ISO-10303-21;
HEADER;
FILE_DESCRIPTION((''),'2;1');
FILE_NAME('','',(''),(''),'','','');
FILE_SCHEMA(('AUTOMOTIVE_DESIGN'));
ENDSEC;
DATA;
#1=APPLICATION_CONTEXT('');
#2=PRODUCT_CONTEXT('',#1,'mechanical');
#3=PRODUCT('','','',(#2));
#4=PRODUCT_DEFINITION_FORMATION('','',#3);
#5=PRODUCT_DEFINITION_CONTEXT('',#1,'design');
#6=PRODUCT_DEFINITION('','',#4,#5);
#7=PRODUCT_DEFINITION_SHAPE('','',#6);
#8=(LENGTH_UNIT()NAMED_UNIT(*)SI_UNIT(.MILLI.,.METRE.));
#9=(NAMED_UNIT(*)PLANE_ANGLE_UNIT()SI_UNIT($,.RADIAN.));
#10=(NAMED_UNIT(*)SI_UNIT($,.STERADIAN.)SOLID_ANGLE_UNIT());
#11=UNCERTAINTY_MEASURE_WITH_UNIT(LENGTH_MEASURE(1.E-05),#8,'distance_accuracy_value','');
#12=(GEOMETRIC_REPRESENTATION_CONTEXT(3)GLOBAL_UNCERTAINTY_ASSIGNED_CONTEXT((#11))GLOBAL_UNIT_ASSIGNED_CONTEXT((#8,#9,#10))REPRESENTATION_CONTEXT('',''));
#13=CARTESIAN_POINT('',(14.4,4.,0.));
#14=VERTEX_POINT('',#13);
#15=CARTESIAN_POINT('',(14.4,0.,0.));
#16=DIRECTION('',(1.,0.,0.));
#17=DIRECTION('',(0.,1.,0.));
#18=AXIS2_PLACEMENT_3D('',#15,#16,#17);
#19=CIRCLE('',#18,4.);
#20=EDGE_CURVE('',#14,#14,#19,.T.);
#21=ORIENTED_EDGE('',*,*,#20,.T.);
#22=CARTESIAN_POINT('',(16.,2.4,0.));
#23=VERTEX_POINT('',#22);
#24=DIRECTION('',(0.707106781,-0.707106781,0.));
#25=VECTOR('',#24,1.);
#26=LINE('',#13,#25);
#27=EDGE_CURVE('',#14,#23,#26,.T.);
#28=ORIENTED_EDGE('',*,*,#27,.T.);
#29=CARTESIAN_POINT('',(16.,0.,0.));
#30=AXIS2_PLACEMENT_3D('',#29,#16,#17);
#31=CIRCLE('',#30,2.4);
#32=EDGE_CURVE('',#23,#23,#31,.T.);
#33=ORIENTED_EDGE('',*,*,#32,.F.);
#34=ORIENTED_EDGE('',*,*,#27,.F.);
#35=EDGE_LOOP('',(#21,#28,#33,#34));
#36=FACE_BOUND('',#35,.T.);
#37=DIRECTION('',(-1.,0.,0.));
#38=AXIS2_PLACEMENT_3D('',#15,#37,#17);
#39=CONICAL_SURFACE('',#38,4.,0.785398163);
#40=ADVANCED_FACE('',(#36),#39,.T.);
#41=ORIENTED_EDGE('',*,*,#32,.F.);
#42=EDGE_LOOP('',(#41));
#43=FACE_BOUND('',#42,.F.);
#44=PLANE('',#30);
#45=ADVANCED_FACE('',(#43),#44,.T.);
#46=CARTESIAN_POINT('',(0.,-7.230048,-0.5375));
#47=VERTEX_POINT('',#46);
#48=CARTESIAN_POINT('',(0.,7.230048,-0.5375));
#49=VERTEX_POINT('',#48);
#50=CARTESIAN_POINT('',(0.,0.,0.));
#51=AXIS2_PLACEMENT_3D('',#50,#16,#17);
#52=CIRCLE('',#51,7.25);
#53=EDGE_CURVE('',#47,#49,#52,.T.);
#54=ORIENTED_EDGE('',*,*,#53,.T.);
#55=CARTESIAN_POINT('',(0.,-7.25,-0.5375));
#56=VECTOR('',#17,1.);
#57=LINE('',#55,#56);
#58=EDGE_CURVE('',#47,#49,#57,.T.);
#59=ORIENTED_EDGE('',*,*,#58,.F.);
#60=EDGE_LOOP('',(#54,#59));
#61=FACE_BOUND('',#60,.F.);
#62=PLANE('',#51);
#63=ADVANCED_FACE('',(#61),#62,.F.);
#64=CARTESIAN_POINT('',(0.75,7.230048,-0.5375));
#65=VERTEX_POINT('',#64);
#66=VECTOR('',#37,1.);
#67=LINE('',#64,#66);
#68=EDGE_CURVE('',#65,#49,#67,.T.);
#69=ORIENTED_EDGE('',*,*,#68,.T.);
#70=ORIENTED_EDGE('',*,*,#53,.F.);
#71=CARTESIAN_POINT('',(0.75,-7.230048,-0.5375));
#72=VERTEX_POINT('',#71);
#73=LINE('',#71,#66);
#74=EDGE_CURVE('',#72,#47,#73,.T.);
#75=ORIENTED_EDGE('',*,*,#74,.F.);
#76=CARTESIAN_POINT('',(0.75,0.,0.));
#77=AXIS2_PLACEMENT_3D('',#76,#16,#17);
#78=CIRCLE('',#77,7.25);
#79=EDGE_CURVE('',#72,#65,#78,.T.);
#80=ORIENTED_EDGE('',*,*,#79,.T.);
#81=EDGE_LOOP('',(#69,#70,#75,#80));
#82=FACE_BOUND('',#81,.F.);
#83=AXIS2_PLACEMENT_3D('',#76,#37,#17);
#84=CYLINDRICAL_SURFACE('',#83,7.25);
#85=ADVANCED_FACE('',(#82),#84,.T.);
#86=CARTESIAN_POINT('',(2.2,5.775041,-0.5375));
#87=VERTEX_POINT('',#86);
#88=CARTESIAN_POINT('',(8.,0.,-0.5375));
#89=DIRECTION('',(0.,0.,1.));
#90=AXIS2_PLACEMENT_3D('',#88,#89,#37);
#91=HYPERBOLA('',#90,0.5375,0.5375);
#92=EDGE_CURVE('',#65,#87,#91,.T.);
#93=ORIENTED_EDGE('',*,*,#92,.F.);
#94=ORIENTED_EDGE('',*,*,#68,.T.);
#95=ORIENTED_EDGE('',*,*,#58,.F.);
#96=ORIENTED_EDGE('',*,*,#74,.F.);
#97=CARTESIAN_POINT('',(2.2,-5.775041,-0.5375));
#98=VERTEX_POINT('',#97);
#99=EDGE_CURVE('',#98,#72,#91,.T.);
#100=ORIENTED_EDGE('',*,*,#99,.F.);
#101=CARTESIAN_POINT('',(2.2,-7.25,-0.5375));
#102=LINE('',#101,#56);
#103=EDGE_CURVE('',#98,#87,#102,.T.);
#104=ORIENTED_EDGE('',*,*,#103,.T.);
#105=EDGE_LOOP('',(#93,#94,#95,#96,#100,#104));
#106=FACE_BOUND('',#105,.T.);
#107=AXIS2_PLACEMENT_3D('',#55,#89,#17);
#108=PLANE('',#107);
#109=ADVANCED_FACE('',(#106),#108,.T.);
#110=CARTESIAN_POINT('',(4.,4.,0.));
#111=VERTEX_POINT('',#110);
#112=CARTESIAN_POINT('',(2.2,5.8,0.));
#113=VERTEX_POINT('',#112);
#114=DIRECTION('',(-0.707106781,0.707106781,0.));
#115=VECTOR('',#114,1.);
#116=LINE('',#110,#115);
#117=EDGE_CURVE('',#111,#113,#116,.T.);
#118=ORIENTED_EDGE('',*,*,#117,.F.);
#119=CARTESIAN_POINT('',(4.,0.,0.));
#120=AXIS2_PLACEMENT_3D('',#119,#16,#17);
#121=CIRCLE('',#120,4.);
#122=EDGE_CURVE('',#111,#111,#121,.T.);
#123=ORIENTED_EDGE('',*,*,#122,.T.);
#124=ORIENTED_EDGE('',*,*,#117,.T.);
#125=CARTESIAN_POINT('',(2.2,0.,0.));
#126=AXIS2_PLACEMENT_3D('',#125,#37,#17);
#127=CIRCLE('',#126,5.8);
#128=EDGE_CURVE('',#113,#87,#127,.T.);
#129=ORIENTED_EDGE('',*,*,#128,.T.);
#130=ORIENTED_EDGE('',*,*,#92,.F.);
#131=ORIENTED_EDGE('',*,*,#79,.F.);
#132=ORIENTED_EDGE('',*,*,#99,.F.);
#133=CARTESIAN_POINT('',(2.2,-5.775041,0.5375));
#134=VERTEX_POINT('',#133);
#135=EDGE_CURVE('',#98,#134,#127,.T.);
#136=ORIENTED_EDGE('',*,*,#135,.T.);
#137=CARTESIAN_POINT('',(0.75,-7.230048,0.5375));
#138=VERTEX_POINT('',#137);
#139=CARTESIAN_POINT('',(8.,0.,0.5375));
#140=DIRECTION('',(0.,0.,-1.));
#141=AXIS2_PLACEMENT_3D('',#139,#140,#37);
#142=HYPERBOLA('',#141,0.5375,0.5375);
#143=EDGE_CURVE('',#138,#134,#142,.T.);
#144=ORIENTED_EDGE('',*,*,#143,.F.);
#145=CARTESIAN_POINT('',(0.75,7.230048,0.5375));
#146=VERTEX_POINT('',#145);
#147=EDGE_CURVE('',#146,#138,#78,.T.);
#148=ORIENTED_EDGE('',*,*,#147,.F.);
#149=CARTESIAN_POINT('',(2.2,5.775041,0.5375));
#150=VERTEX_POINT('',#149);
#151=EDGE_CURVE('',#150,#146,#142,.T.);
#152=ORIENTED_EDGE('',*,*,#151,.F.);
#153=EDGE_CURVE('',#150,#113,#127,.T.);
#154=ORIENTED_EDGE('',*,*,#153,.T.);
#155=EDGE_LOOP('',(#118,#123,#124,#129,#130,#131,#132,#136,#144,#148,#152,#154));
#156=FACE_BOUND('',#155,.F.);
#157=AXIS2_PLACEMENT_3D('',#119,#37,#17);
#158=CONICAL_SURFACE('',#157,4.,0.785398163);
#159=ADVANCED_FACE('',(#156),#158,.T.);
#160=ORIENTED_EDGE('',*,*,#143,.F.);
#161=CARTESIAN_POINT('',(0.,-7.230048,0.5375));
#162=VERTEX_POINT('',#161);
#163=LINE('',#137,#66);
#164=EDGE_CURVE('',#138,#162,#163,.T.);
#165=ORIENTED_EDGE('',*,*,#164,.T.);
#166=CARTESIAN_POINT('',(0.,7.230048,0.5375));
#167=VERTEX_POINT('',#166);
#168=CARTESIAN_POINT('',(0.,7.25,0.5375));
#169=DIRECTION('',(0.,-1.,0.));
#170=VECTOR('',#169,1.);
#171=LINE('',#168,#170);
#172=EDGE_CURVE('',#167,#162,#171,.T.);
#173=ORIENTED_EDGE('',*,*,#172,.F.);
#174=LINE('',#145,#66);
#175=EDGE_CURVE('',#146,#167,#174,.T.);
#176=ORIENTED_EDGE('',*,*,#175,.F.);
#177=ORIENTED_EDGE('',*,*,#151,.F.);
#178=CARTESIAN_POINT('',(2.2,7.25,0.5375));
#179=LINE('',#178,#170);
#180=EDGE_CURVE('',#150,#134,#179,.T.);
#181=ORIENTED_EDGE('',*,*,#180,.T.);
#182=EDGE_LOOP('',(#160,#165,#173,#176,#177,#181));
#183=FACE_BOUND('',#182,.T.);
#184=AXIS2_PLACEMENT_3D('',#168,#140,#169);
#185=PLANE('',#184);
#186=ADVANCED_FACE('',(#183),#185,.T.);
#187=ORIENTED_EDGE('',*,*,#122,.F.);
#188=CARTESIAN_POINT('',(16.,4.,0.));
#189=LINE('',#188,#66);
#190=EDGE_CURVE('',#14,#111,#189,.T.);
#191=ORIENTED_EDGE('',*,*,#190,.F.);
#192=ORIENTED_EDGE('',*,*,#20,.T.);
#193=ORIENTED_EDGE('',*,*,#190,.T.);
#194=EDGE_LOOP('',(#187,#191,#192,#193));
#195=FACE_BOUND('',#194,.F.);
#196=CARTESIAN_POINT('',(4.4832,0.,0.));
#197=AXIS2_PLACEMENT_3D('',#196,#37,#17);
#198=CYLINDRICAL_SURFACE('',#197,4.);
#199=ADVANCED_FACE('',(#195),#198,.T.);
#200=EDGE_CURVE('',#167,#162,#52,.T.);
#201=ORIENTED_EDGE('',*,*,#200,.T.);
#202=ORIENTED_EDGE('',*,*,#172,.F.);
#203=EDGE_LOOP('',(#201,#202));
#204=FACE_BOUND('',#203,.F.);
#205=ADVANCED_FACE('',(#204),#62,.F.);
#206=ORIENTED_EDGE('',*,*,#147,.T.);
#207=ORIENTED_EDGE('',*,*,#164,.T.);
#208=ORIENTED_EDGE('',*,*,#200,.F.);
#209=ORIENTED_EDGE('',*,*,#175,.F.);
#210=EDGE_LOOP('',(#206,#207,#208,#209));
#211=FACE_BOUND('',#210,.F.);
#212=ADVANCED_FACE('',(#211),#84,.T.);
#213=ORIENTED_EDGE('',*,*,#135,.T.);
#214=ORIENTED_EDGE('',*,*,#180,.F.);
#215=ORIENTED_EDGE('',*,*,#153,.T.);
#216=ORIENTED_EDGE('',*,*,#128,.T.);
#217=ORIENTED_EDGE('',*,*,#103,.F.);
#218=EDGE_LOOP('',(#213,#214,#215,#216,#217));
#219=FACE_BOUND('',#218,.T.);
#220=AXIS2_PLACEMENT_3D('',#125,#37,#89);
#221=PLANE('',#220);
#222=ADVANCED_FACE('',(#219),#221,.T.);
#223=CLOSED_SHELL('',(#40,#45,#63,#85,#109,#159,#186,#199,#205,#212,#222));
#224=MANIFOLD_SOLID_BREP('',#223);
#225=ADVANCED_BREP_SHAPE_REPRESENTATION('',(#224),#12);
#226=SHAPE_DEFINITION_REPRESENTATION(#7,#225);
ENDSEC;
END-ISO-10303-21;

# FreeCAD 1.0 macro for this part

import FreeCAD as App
import Part
import Sketcher
Q = App.Units.Quantity


def edges_at(feature, points):
    """Names of the edges that pass closest to the given points."""
    edges = feature.Shape.Edges
    near = lambda p: min(range(len(edges)), key=lambda i: edges[i].distToShape(Part.Vertex(*p))[0])
    return sorted({f"Edge{near(p) + 1}" for p in points})

doc = App.newDocument("Part")
params = doc.addObject("Spreadsheet::Sheet", "Params")
for row, (alias, value) in enumerate([
    ("sketch1_width", "16 mm"),
    ("sketch1_height", "4 mm"),
    ("sketch1_width2", "0.75 mm"),
    ("revolution_angle", "360 deg"),
    ("sketch2_width", "14.5 mm"),
    ("pocket1_length", "2.2 mm"),
    ("chamfer_size", "1.6 mm"),
], start=1):
    params.set(f"A{row}", alias)
    params.set(f"B{row}", "=" + value)
    params.setAlias(f"B{row}", alias)

body = doc.addObject("PartDesign::Body", "Body")

# Sketch on XY plane
sketch1 = body.newObject("Sketcher::SketchObject", "Sketch")
sketch1.AttachmentSupport = (doc.getObject("XY_Plane"), [""])
sketch1.MapMode = "FlatFace"
sketch1.addGeometry(Part.LineSegment(App.Vector(0, 7.25, 0), App.Vector(0, 0, 0)), False)
sketch1.addGeometry(Part.LineSegment(App.Vector(0, 0, 0), App.Vector(16, 0, 0)), False)
sketch1.addGeometry(Part.LineSegment(App.Vector(16, 0, 0), App.Vector(16, 4, 0)), False)
sketch1.addGeometry(Part.LineSegment(App.Vector(16, 4, 0), App.Vector(4, 4, 0)), False)
sketch1.addGeometry(Part.LineSegment(App.Vector(4, 4, 0), App.Vector(0.75, 7.25, 0)), False)
sketch1.addGeometry(Part.LineSegment(App.Vector(0.75, 7.25, 0), App.Vector(0, 7.25, 0)), False)
sketch1.addConstraint(Sketcher.Constraint("Coincident", 0, 2, 1, 1))
sketch1.addConstraint(Sketcher.Constraint("Coincident", 1, 2, 2, 1))
sketch1.addConstraint(Sketcher.Constraint("Coincident", 2, 2, 3, 1))
sketch1.addConstraint(Sketcher.Constraint("Coincident", 3, 2, 4, 1))
sketch1.addConstraint(Sketcher.Constraint("Coincident", 4, 2, 5, 1))
sketch1.addConstraint(Sketcher.Constraint("Coincident", 5, 2, 0, 1))
sketch1.addConstraint(Sketcher.Constraint("Vertical", 0))
sketch1.addConstraint(Sketcher.Constraint("Horizontal", 1))
sketch1.addConstraint(Sketcher.Constraint("Vertical", 2))
sketch1.addConstraint(Sketcher.Constraint("Horizontal", 3))
sketch1.addConstraint(Sketcher.Constraint("Horizontal", 5))
sketch1.addConstraint(Sketcher.Constraint("Coincident", 0, 2, -1, 1))
sketch1.addConstraint(Sketcher.Constraint("DistanceX", 1, 1, 1, 2, Q("16 mm")))
sketch1.addConstraint(Sketcher.Constraint("DistanceY", 2, 1, 2, 2, Q("4 mm")))
sketch1.addConstraint(Sketcher.Constraint("DistanceX", -1, 1, 3, 2, Q("4 mm")))
sketch1.addConstraint(Sketcher.Constraint("Angle", 4, Q("135 deg")))
sketch1.addConstraint(Sketcher.Constraint("DistanceX", 5, 2, 5, 1, Q("0.75 mm")))
sketch1.setExpression("Constraints[12]", "Params.sketch1_width")
sketch1.setExpression("Constraints[13]", "Params.sketch1_height")
sketch1.setExpression("Constraints[16]", "Params.sketch1_width2")
revolution = body.newObject("PartDesign::Revolution", "Revolution")
revolution.Profile = sketch1
revolution.ReferenceAxis = (sketch1, ["H_Axis"])
revolution.setExpression("Angle", "Params.revolution_angle")

# Sketch on YZ plane
sketch2 = body.newObject("Sketcher::SketchObject", "Sketch001")
sketch2.AttachmentSupport = (doc.getObject("YZ_Plane"), [""])
sketch2.MapMode = "FlatFace"
sketch2.addGeometry(Part.LineSegment(App.Vector(-7.25, 0.5375, 0), App.Vector(7.25, 0.5375, 0)), False)
sketch2.addGeometry(Part.LineSegment(App.Vector(7.25, 0.5375, 0), App.Vector(7.25, -0.5375, 0)), False)
sketch2.addGeometry(Part.LineSegment(App.Vector(7.25, -0.5375, 0), App.Vector(-7.25, -0.5375, 0)), False)
sketch2.addGeometry(Part.LineSegment(App.Vector(-7.25, -0.5375, 0), App.Vector(-7.25, 0.5375, 0)), False)
sketch2.addConstraint(Sketcher.Constraint("Coincident", 0, 2, 1, 1))
sketch2.addConstraint(Sketcher.Constraint("Coincident", 1, 2, 2, 1))
sketch2.addConstraint(Sketcher.Constraint("Coincident", 2, 2, 3, 1))
sketch2.addConstraint(Sketcher.Constraint("Coincident", 3, 2, 0, 1))
sketch2.addConstraint(Sketcher.Constraint("Horizontal", 0))
sketch2.addConstraint(Sketcher.Constraint("Vertical", 1))
sketch2.addConstraint(Sketcher.Constraint("Horizontal", 2))
sketch2.addConstraint(Sketcher.Constraint("Vertical", 3))
sketch2.addConstraint(Sketcher.Constraint("Symmetric", 0, 2, 2, 2, -1, 1))
sketch2.addConstraint(Sketcher.Constraint("DistanceX", 0, 1, 0, 2, Q("14.5 mm")))
sketch2.addConstraint(Sketcher.Constraint("DistanceY", 1, 2, 1, 1, Q("1.075 mm")))
sketch2.setExpression("Constraints[9]", "Params.sketch2_width")
pocket1 = body.newObject("PartDesign::Pocket", "Pocket")
pocket1.Profile = sketch2
pocket1.setExpression("Length", "Params.pocket1_length")
pocket1.Reversed = True
doc.recompute()

chamfer = body.newObject("PartDesign::Chamfer", "Chamfer")
chamfer.Base = (pocket1, edges_at(pocket1, [(16, -4, 0)]))
chamfer.setExpression("Size", "Params.chamfer_size")

doc.recompute()
